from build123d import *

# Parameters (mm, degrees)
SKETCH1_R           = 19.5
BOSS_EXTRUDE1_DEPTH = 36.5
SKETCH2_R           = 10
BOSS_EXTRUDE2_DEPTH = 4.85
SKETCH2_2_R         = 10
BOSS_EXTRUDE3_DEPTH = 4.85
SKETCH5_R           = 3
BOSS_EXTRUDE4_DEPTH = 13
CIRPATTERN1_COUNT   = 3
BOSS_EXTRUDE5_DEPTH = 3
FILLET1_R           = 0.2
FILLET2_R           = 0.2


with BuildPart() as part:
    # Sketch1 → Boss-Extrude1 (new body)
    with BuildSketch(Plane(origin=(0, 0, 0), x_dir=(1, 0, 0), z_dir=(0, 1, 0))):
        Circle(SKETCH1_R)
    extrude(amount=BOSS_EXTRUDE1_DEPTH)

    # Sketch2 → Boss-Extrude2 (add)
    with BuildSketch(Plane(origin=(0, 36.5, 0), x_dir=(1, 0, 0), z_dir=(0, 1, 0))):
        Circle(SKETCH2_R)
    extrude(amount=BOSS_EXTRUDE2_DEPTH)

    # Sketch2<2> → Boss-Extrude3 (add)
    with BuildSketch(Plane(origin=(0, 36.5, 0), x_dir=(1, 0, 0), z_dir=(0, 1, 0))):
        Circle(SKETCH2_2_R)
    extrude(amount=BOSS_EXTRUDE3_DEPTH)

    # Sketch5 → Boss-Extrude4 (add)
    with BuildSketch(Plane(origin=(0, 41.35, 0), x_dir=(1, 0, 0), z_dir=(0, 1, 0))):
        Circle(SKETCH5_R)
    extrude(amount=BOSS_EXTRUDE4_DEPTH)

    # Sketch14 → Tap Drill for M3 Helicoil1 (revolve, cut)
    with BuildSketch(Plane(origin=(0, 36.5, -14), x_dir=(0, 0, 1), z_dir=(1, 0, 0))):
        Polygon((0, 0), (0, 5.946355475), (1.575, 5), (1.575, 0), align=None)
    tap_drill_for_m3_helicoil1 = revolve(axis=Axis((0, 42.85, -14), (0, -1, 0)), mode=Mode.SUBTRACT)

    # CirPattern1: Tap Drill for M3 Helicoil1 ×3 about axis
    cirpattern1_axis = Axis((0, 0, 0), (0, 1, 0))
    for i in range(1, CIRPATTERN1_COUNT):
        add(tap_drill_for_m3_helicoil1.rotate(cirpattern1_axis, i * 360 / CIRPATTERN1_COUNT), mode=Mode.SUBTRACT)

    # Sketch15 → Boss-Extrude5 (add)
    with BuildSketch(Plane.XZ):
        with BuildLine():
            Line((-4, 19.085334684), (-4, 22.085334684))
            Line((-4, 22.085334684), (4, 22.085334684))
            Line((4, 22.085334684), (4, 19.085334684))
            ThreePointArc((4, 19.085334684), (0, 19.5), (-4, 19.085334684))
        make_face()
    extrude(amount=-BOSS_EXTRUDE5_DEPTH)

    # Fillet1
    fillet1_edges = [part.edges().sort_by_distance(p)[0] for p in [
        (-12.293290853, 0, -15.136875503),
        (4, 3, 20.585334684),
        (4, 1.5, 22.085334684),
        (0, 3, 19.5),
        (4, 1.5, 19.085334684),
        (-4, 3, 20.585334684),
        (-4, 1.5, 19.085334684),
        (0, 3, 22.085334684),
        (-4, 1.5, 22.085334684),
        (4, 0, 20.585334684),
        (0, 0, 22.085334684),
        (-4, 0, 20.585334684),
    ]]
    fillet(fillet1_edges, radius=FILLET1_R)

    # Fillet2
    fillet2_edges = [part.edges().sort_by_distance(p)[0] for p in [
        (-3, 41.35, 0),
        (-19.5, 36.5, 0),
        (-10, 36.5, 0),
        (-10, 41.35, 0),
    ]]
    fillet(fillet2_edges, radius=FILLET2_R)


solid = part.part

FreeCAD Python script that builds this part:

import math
import FreeCAD as App
import Part
import Sketcher
from FreeCAD import Vector
Q = App.Units.Quantity


def edges_at(feature, points):
    """Names of the edges that pass closest to the given points."""
    edges = feature.Shape.Edges
    near = lambda p: min(range(len(edges)), key=lambda i: edges[i].distToShape(Part.Vertex(*p))[0])
    return sorted({f"Edge{near(p) + 1}" for p in points})

doc = App.newDocument("Part")
params = doc.addObject("Spreadsheet::Sheet", "Params")
for row, (alias, value) in enumerate([
    ("sketch1_diameter", "39 mm"),
    ("pad1_length", "36.5 mm"),
    ("sketch2_diameter", "20 mm"),
    ("pad2_length", "4.85 mm"),
    ("sketch3_diameter", "20 mm"),
    ("pad3_length", "4.85 mm"),
    ("sketch4_diameter", "6 mm"),
    ("pad4_length", "13 mm"),
    ("sketch5_width", "5 mm"),
    ("groove_angle", "360 deg"),
    ("sketch6_radius", "19.5 mm"),
    ("sketch6_width", "8 mm"),
    ("sketch6_height", "3 mm"),
    ("pad5_length", "3 mm"),
    ("fillet_radius", "0.2 mm"),
    ("fillet2_radius", "0.2 mm"),
], start=1):
    params.set(f"A{row}", alias)
    params.set(f"B{row}", "=" + value)
    params.setAlias(f"B{row}", alias)

body = doc.addObject("PartDesign::Body", "Body")

sketch1 = body.newObject("Sketcher::SketchObject", "Sketch")
sketch1.AttachmentSupport = (doc.getObject("XZ_Plane"), [""])
sketch1.MapMode = "FlatFace"
sketch1.addGeometry(Part.Circle(Vector(0, 0, 0), Vector(0, 0, 1), 20), False)
sketch1.addConstraint([
    Sketcher.Constraint("Coincident", 0, 3, -1, 1),
    Sketcher.Constraint("Diameter", 0, 39.0),
])
sketch1.setExpression("Constraints[1]", "Params.sketch1_diameter")
pad1 = body.newObject("PartDesign::Pad", "Pad")
pad1.Profile = sketch1
pad1.setExpression("Length", "Params.pad1_length")
pad1.Reversed = True

sketch2 = body.newObject("Sketcher::SketchObject", "Sketch001")
sketch2.AttachmentSupport = (doc.getObject("XZ_Plane"), [""])
sketch2.MapMode = "FlatFace"
sketch2.AttachmentOffset = App.Placement(Vector(0, 0, -36.5), App.Rotation())
sketch2.addGeometry(Part.Circle(Vector(0, 0, 0), Vector(0, 0, 1), 10), False)
sketch2.addConstraint([
    Sketcher.Constraint("Coincident", 0, 3, -1, 1),
    Sketcher.Constraint("Diameter", 0, 20.0),
])
sketch2.setExpression("Constraints[1]", "Params.sketch2_diameter")
pad2 = body.newObject("PartDesign::Pad", "Pad001")
pad2.Profile = sketch2
pad2.setExpression("Length", "Params.pad2_length")
pad2.Reversed = True

sketch3 = body.newObject("Sketcher::SketchObject", "Sketch002")
sketch3.AttachmentSupport = (doc.getObject("XZ_Plane"), [""])
sketch3.MapMode = "FlatFace"
sketch3.AttachmentOffset = App.Placement(Vector(0, 0, -36.5), App.Rotation())
sketch3.addGeometry(Part.Circle(Vector(0, 0, 0), Vector(0, 0, 1), 10), False)
sketch3.addConstraint([
    Sketcher.Constraint("Coincident", 0, 3, -1, 1),
    Sketcher.Constraint("Diameter", 0, 20.0),
])
sketch3.setExpression("Constraints[1]", "Params.sketch3_diameter")
pad3 = body.newObject("PartDesign::Pad", "Pad002")
pad3.Profile = sketch3
pad3.setExpression("Length", "Params.pad3_length")
pad3.Reversed = True

sketch4 = body.newObject("Sketcher::SketchObject", "Sketch003")
sketch4.AttachmentSupport = (doc.getObject("XZ_Plane"), [""])
sketch4.MapMode = "FlatFace"
sketch4.AttachmentOffset = App.Placement(Vector(0, 0, -41.35), App.Rotation())
sketch4.addGeometry(Part.Circle(Vector(0, 0, 0), Vector(0, 0, 1), 3), False)
sketch4.addConstraint([
    Sketcher.Constraint("Coincident", 0, 3, -1, 1),
    Sketcher.Constraint("Diameter", 0, 6.0),
])
sketch4.setExpression("Constraints[1]", "Params.sketch4_diameter")
pad4 = body.newObject("PartDesign::Pad", "Pad003")
pad4.Profile = sketch4
pad4.setExpression("Length", "Params.pad4_length")
pad4.Reversed = True

sketch5 = body.newObject("Sketcher::SketchObject", "Sketch004")
sketch5.AttachmentSupport = (doc.getObject("YZ_Plane"), [""])
sketch5.MapMode = "FlatFace"
sketch5.addGeometry([
    Part.LineSegment(Vector(30.6, -14, 0), Vector(36.5, -14, 0)),
    Part.LineSegment(Vector(36.5, -14, 0), Vector(36.5, -12.4, 0)),
    Part.LineSegment(Vector(36.5, -12.4, 0), Vector(31.5, -12.4, 0)),
    Part.LineSegment(Vector(31.5, -12.4, 0), Vector(30.6, -14, 0)),
], False)
sketch5.addGeometry(Part.LineSegment(Vector(36.5, -14, 0), Vector(30.6, -14, 0)), True)
sketch5.addConstraint([
    Sketcher.Constraint("Coincident", 0, 2, 1, 1),
    Sketcher.Constraint("Coincident", 1, 2, 2, 1),
    Sketcher.Constraint("Coincident", 2, 2, 3, 1),
    Sketcher.Constraint("Coincident", 3, 2, 0, 1),
    Sketcher.Constraint("Horizontal", 0),
    Sketcher.Constraint("Vertical", 1),
    Sketcher.Constraint("Horizontal", 2),
    Sketcher.Constraint("Horizontal", 4),
    Sketcher.Constraint("Coincident", 4, 1, 0, 2),
    Sketcher.Constraint("Equal", 0, 4),
    Sketcher.Constraint("DistanceX", 2, 2, 2, 1, 5.0),
    Sketcher.Constraint("Angle", 3, Q("-121 deg")),
    Sketcher.Constraint("DistanceY", 0, 2, -1, 1, 14.0),
    Sketcher.Constraint("DistanceX", -1, 1, 0, 2, 36.5),
    Sketcher.Constraint("DistanceY", 1, 1, 1, 2, 1.575),
])
sketch5.setExpression("Constraints[10]", "Params.sketch5_width")
groove = body.newObject("PartDesign::Groove", "Groove")
groove.Profile = sketch5
groove.ReferenceAxis = (sketch5, ["Axis0"])
groove.setExpression("Angle", "Params.groove_angle")
doc.recompute()

polarpattern = body.newObject("PartDesign::PolarPattern", "PolarPattern")
polarpattern.Originals = [groove]
polarpattern.Axis = (doc.getObject("Y_Axis"), [""])
polarpattern.Angle = 360
polarpattern.Occurrences = 3
body.Tip = polarpattern

sketch6 = body.newObject("Sketcher::SketchObject", "Sketch005")
sketch6.AttachmentSupport = (doc.getObject("XZ_Plane"), [""])
sketch6.MapMode = "FlatFace"
sketch6.addGeometry([
    Part.LineSegment(Vector(-4, 22.1, 0), Vector(-4, 19.1, 0)),
    Part.ArcOfCircle(Part.Circle(Vector(0, 0, 0), Vector(0, 0, 1), 19.5), math.radians(78), math.radians(102)),
    Part.LineSegment(Vector(4, 19.1, 0), Vector(4, 22.1, 0)),
    Part.LineSegment(Vector(4, 22.1, 0), Vector(-4, 22.1, 0)),
], False)
sketch6.addConstraint([
    Sketcher.Constraint("Coincident", 0, 2, 1, 2),
    Sketcher.Constraint("Coincident", 1, 1, 2, 1),
    Sketcher.Constraint("Coincident", 2, 2, 3, 1),
    Sketcher.Constraint("Coincident", 3, 2, 0, 1),
    Sketcher.Constraint("Vertical", 0),
    Sketcher.Constraint("Vertical", 2),
    Sketcher.Constraint("Horizontal", 3),
    Sketcher.Constraint("Coincident", 1, 3, -1, 1),
    Sketcher.Constraint("Horizontal", 0, 2, 1, 1),
    Sketcher.Constraint("Radius", 1, 19.5),
    Sketcher.Constraint("DistanceX", 3, 2, 3, 1, 8.0),
    Sketcher.Constraint("DistanceY", 0, 2, 0, 1, 3.0),
])
sketch6.setExpression("Constraints[9]", "Params.sketch6_radius")
sketch6.setExpression("Constraints[10]", "Params.sketch6_width")
sketch6.setExpression("Constraints[11]", "Params.sketch6_height")
pad5 = body.newObject("PartDesign::Pad", "Pad004")
pad5.Profile = sketch6
pad5.setExpression("Length", "Params.pad5_length")
pad5.Reversed = True
doc.recompute()

fillet = body.newObject("PartDesign::Fillet", "Fillet")
fillet.Base = (pad5, edges_at(pad5, [
    (-12.293, 0, -15.137),
    (4, 3, 20.585),
    (4, 1.5, 22.085),
    (0, 3, 19.5),
    (4, 1.5, 19.085),
    (-4, 3, 20.585),
    (-4, 1.5, 19.085),
    (0, 3, 22.085),
    (-4, 1.5, 22.085),
    (4, 0, 20.585),
    (0, 0, 22.085),
    (-4, 0, 20.585),
]))
fillet.setExpression("Radius", "Params.fillet_radius")
doc.recompute()

fillet2 = body.newObject("PartDesign::Fillet", "Fillet001")
fillet2.Base = (fillet, edges_at(fillet, [
    (-3, 41.35, 0),
    (-19.5, 36.5, 0),
    (-10, 36.5, 0),
    (-10, 41.35, 0),
]))
fillet2.setExpression("Radius", "Params.fillet2_radius")

doc.recompute()
